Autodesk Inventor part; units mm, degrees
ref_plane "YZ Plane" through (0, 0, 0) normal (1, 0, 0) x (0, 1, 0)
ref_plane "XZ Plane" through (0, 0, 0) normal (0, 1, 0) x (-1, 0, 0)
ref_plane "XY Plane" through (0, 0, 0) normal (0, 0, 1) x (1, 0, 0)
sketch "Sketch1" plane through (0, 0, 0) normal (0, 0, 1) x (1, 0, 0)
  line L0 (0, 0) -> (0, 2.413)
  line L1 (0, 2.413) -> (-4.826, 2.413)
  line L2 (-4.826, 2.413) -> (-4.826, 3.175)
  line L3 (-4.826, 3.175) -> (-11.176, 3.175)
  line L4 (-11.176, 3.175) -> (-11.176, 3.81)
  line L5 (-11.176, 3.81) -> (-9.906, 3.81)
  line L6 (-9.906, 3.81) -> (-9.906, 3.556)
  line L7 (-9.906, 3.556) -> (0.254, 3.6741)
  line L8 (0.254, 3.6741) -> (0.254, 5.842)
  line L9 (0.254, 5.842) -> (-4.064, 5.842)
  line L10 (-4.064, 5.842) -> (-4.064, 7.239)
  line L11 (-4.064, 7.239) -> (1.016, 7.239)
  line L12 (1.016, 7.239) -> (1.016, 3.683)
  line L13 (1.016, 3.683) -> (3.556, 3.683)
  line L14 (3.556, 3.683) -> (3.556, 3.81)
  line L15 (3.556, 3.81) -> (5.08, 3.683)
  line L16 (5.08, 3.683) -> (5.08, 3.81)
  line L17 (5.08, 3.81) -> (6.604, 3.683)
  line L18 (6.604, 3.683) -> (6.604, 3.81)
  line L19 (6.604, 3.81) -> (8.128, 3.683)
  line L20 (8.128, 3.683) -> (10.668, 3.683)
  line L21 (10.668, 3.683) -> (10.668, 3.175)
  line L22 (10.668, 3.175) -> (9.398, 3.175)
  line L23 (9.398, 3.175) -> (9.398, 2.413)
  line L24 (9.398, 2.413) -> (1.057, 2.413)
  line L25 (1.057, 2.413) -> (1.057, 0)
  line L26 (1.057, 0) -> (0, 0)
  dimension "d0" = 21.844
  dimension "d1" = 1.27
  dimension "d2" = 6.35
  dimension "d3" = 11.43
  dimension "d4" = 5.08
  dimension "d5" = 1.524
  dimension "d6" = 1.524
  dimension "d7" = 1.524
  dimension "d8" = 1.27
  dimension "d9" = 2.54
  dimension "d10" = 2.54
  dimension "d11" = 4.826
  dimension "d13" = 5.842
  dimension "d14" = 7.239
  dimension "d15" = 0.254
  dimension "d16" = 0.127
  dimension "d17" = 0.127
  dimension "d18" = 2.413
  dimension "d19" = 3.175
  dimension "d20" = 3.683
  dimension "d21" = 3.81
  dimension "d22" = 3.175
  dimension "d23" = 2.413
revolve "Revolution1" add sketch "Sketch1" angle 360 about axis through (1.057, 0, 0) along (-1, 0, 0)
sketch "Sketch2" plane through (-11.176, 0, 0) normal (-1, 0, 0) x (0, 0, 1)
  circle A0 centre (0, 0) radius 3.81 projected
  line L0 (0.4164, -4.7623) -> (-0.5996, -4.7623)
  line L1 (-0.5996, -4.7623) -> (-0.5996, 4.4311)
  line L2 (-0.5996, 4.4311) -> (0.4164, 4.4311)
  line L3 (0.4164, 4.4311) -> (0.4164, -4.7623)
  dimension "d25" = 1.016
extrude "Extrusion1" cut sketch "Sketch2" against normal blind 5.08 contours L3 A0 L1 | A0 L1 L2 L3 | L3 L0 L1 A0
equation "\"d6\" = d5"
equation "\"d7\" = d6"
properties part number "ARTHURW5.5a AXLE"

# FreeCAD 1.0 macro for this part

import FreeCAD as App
import Part
import Sketcher
Q = App.Units.Quantity

doc = App.newDocument("Part")
body = doc.addObject("PartDesign::Body", "Body")

sketch1 = body.newObject("Sketcher::SketchObject", "Sketch")
sketch1.AttachmentSupport = (doc.getObject("XY_Plane"), [""])
sketch1.MapMode = "FlatFace"
sketch1.addGeometry(Part.LineSegment(App.Vector(0, 2.41, 0), App.Vector(0, 0, 0)), False)
sketch1.addGeometry(Part.LineSegment(App.Vector(0, 0, 0), App.Vector(1.06, 0, 0)), False)
sketch1.addGeometry(Part.LineSegment(App.Vector(1.06, 0, 0), App.Vector(1.06, 2.41, 0)), False)
sketch1.addGeometry(Part.LineSegment(App.Vector(1.06, 2.41, 0), App.Vector(9.4, 2.41, 0)), False)
sketch1.addGeometry(Part.LineSegment(App.Vector(9.4, 2.41, 0), App.Vector(9.4, 3.17, 0)), False)
sketch1.addGeometry(Part.LineSegment(App.Vector(9.4, 3.17, 0), App.Vector(10.67, 3.17, 0)), False)
sketch1.addGeometry(Part.LineSegment(App.Vector(10.67, 3.17, 0), App.Vector(10.67, 3.68, 0)), False)
sketch1.addGeometry(Part.LineSegment(App.Vector(10.67, 3.68, 0), App.Vector(8.13, 3.68, 0)), False)
sketch1.addGeometry(Part.LineSegment(App.Vector(8.13, 3.68, 0), App.Vector(6.6, 3.81, 0)), False)
sketch1.addGeometry(Part.LineSegment(App.Vector(6.6, 3.81, 0), App.Vector(6.6, 3.68, 0)), False)
sketch1.addGeometry(Part.LineSegment(App.Vector(6.6, 3.68, 0), App.Vector(5.08, 3.81, 0)), False)
sketch1.addGeometry(Part.LineSegment(App.Vector(5.08, 3.81, 0), App.Vector(5.08, 3.68, 0)), False)
sketch1.addGeometry(Part.LineSegment(App.Vector(5.08, 3.68, 0), App.Vector(3.56, 3.81, 0)), False)
sketch1.addGeometry(Part.LineSegment(App.Vector(3.56, 3.81, 0), App.Vector(3.56, 3.68, 0)), False)
sketch1.addGeometry(Part.LineSegment(App.Vector(3.56, 3.68, 0), App.Vector(1.02, 3.68, 0)), False)
sketch1.addGeometry(Part.LineSegment(App.Vector(1.02, 3.68, 0), App.Vector(1.02, 7.24, 0)), False)
sketch1.addGeometry(Part.LineSegment(App.Vector(1.02, 7.24, 0), App.Vector(-4.06, 7.24, 0)), False)
sketch1.addGeometry(Part.LineSegment(App.Vector(-4.06, 7.24, 0), App.Vector(-4.06, 5.84, 0)), False)
sketch1.addGeometry(Part.LineSegment(App.Vector(-4.06, 5.84, 0), App.Vector(0.25, 5.84, 0)), False)
sketch1.addGeometry(Part.LineSegment(App.Vector(0.25, 5.84, 0), App.Vector(0.25, 3.67, 0)), False)
sketch1.addGeometry(Part.LineSegment(App.Vector(0.25, 3.67, 0), App.Vector(-9.91, 3.56, 0)), False)
sketch1.addGeometry(Part.LineSegment(App.Vector(-9.91, 3.56, 0), App.Vector(-9.91, 3.81, 0)), False)
sketch1.addGeometry(Part.LineSegment(App.Vector(-9.91, 3.81, 0), App.Vector(-11.18, 3.81, 0)), False)
sketch1.addGeometry(Part.LineSegment(App.Vector(-11.18, 3.81, 0), App.Vector(-11.18, 3.17, 0)), False)
sketch1.addGeometry(Part.LineSegment(App.Vector(-11.18, 3.17, 0), App.Vector(-4.83, 3.17, 0)), False)
sketch1.addGeometry(Part.LineSegment(App.Vector(-4.83, 3.17, 0), App.Vector(-4.83, 2.41, 0)), False)
sketch1.addGeometry(Part.LineSegment(App.Vector(-4.83, 2.41, 0), App.Vector(0, 2.41, 0)), False)
sketch1.addConstraint(Sketcher.Constraint("Coincident", 0, 2, 1, 1))
sketch1.addConstraint(Sketcher.Constraint("Coincident", 1, 2, 2, 1))
sketch1.addConstraint(Sketcher.Constraint("Coincident", 2, 2, 3, 1))
sketch1.addConstraint(Sketcher.Constraint("Coincident", 3, 2, 4, 1))
sketch1.addConstraint(Sketcher.Constraint("Coincident", 4, 2, 5, 1))
sketch1.addConstraint(Sketcher.Constraint("Coincident", 5, 2, 6, 1))
sketch1.addConstraint(Sketcher.Constraint("Coincident", 6, 2, 7, 1))
sketch1.addConstraint(Sketcher.Constraint("Coincident", 7, 2, 8, 1))
sketch1.addConstraint(Sketcher.Constraint("Coincident", 8, 2, 9, 1))
sketch1.addConstraint(Sketcher.Constraint("Coincident", 9, 2, 10, 1))
sketch1.addConstraint(Sketcher.Constraint("Coincident", 10, 2, 11, 1))
sketch1.addConstraint(Sketcher.Constraint("Coincident", 11, 2, 12, 1))
sketch1.addConstraint(Sketcher.Constraint("Coincident", 12, 2, 13, 1))
sketch1.addConstraint(Sketcher.Constraint("Coincident", 13, 2, 14, 1))
sketch1.addConstraint(Sketcher.Constraint("Coincident", 14, 2, 15, 1))
sketch1.addConstraint(Sketcher.Constraint("Coincident", 15, 2, 16, 1))
sketch1.addConstraint(Sketcher.Constraint("Coincident", 16, 2, 17, 1))
sketch1.addConstraint(Sketcher.Constraint("Coincident", 17, 2, 18, 1))
sketch1.addConstraint(Sketcher.Constraint("Coincident", 18, 2, 19, 1))
sketch1.addConstraint(Sketcher.Constraint("Coincident", 19, 2, 20, 1))
sketch1.addConstraint(Sketcher.Constraint("Coincident", 20, 2, 21, 1))
sketch1.addConstraint(Sketcher.Constraint("Coincident", 21, 2, 22, 1))
sketch1.addConstraint(Sketcher.Constraint("Coincident", 22, 2, 23, 1))
sketch1.addConstraint(Sketcher.Constraint("Coincident", 23, 2, 24, 1))
sketch1.addConstraint(Sketcher.Constraint("Coincident", 24, 2, 25, 1))
sketch1.addConstraint(Sketcher.Constraint("Coincident", 25, 2, 26, 1))
sketch1.addConstraint(Sketcher.Constraint("Coincident", 26, 2, 0, 1))
sketch1.addConstraint(Sketcher.Constraint("Vertical", 0))
sketch1.addConstraint(Sketcher.Constraint("Horizontal", 1))
sketch1.addConstraint(Sketcher.Constraint("Vertical", 2))
sketch1.addConstraint(Sketcher.Constraint("Horizontal", 3))
sketch1.addConstraint(Sketcher.Constraint("Vertical", 4))
sketch1.addConstraint(Sketcher.Constraint("Horizontal", 5))
sketch1.addConstraint(Sketcher.Constraint("Vertical", 6))
sketch1.addConstraint(Sketcher.Constraint("Horizontal", 7))
sketch1.addConstraint(Sketcher.Constraint("Vertical", 9))
sketch1.addConstraint(Sketcher.Constraint("Vertical", 11))
sketch1.addConstraint(Sketcher.Constraint("Vertical", 13))
sketch1.addConstraint(Sketcher.Constraint("Horizontal", 14))
sketch1.addConstraint(Sketcher.Constraint("Vertical", 15))
sketch1.addConstraint(Sketcher.Constraint("Horizontal", 16))
sketch1.addConstraint(Sketcher.Constraint("Vertical", 17))
sketch1.addConstraint(Sketcher.Constraint("Horizontal", 18))
sketch1.addConstraint(Sketcher.Constraint("Vertical", 19))
sketch1.addConstraint(Sketcher.Constraint("Vertical", 21))
sketch1.addConstraint(Sketcher.Constraint("Horizontal", 22))
sketch1.addConstraint(Sketcher.Constraint("Vertical", 23))
sketch1.addConstraint(Sketcher.Constraint("Horizontal", 24))
sketch1.addConstraint(Sketcher.Constraint("Vertical", 25))
sketch1.addConstraint(Sketcher.Constraint("Horizontal", 26))
sketch1.addConstraint(Sketcher.Constraint("Coincident", 0, 2, -1, 1))
sketch1.addConstraint(Sketcher.Constraint("Parallel", 8, 10))
sketch1.addConstraint(Sketcher.Constraint("Parallel", 10, 12))
sketch1.addConstraint(Sketcher.Constraint("Horizontal", 7, 2, 9, 2))
sketch1.addConstraint(Sketcher.Constraint("Horizontal", 8, 2, 10, 2))
sketch1.addConstraint(Sketcher.Constraint("Horizontal", 9, 2, 11, 2))
sketch1.addConstraint(Sketcher.Constraint("Horizontal", 10, 2, 12, 2))
sketch1.addConstraint(Sketcher.Constraint("Horizontal", 11, 2, 13, 2))
sketch1.addConstraint(Sketcher.Constraint("Horizontal", 12, 2, 21, 2))
sketch1.addConstraint(Sketcher.Constraint("Horizontal", 5, 2, 23, 2))
sketch1.addConstraint(Sketcher.Constraint("Horizontal", 3, 2, 25, 2))
sketch1.addConstraint(Sketcher.Constraint("Equal", 7, 14))
sketch1.addConstraint(Sketcher.Constraint("Equal", 5, 22))
sketch1.addConstraint(Sketcher.Constraint("DistanceX", 7, 2, 7, 1, Q("0.1 in")))
sketch1.addConstraint(Sketcher.Constraint("DistanceX", 16, 2, 16, 1, Q("0.2 in")))
sketch1.addConstraint(Sketcher.Constraint("DistanceX", 5, 1, 5, 2, Q("0.05 in")))
sketch1.addConstraint(Sketcher.Constraint("DistanceX", 24, 1, 24, 2, Q("0.25 in")))
sketch1.addConstraint(Sketcher.Constraint("DistanceX", 26, 1, 26, 2, Q("0.19 in")))
sketch1.addConstraint(Sketcher.Constraint("DistanceY", 21, 1, 21, 2, Q("0.01 in")))
sketch1.addConstraint(Sketcher.Constraint("DistanceX", -1, 1, 10, 2, Q("0.2 in")))
sketch1.addConstraint(Sketcher.Constraint("DistanceX", 24, 2, 19, 2, Q("0.2 in")))
sketch1.addConstraint(Sketcher.Constraint("DistanceY", 0, 2, 0, 1, Q("0.095 in")))
sketch1.addConstraint(Sketcher.Constraint("DistanceY", 9, 2, 9, 1, Q("0.005 in")))
sketch1.addConstraint(Sketcher.Constraint("DistanceY", -1, 1, 8, 2, Q("0.15 in")))
sketch1.addConstraint(Sketcher.Constraint("DistanceY", -1, 1, 17, 2, Q("0.23 in")))
sketch1.addConstraint(Sketcher.Constraint("DistanceX", 8, 2, 7, 2, Q("0.06 in")))
sketch1.addConstraint(Sketcher.Constraint("DistanceY", 2, 2, 15, 2, Q("0.19 in")))
sketch1.addConstraint(Sketcher.Constraint("DistanceY", -1, 1, 4, 2, Q("0.125 in")))
sketch1.addConstraint(Sketcher.Constraint("DistanceX", 1, 1, 1, 2, Q("1.057 mm")))
sketch1.addConstraint(Sketcher.Constraint("DistanceY", 19, 2, 19, 1, Q("2.168 mm")))
revolution = body.newObject("PartDesign::Revolution", "Revolution")
revolution.Profile = sketch1
revolution.ReferenceAxis = (sketch1, ["H_Axis"])
revolution.Angle = 360

sketch2 = body.newObject("Sketcher::SketchObject", "Sketch001")
sketch2.AttachmentSupport = (doc.getObject("YZ_Plane"), [""])
sketch2.MapMode = "FlatFace"
sketch2.AttachmentOffset = App.Placement(App.Vector(0, 0, -0.44 * 25.4), App.Rotation())
sketch2.addGeometry(Part.LineSegment(App.Vector(4.4, 0.4, 0), App.Vector(4.4, -0.6, 0)), False)
sketch2.addGeometry(Part.LineSegment(App.Vector(4.4, -0.6, 0), App.Vector(-4.8, -0.6, 0)), False)
sketch2.addGeometry(Part.LineSegment(App.Vector(-4.8, -0.6, 0), App.Vector(-4.8, 0.4, 0)), False)
sketch2.addGeometry(Part.LineSegment(App.Vector(-4.8, 0.4, 0), App.Vector(4.4, 0.4, 0)), False)
sketch2.addConstraint(Sketcher.Constraint("Coincident", 0, 2, 1, 1))
sketch2.addConstraint(Sketcher.Constraint("Coincident", 1, 2, 2, 1))
sketch2.addConstraint(Sketcher.Constraint("Coincident", 2, 2, 3, 1))
sketch2.addConstraint(Sketcher.Constraint("Coincident", 3, 2, 0, 1))
sketch2.addConstraint(Sketcher.Constraint("Vertical", 0))
sketch2.addConstraint(Sketcher.Constraint("Horizontal", 1))
sketch2.addConstraint(Sketcher.Constraint("Vertical", 2))
sketch2.addConstraint(Sketcher.Constraint("Horizontal", 3))
sketch2.addConstraint(Sketcher.Constraint("DistanceY", 0, 2, 0, 1, Q("0.04 in")))
sketch2.addConstraint(Sketcher.Constraint("DistanceX", 1, 2, -1, 1, Q("0.1875 in")))
sketch2.addConstraint(Sketcher.Constraint("DistanceX", 1, 2, 1, 1, Q("9.1934 mm")))
sketch2.addConstraint(Sketcher.Constraint("DistanceY", 0, 2, -1, 1, Q("0.0236 in")))
pocket1 = body.newObject("PartDesign::Pocket", "Pocket")
pocket1.Profile = sketch2
pocket1.Length = Q("0.2 in")
pocket1.Reversed = True

doc.recompute()
